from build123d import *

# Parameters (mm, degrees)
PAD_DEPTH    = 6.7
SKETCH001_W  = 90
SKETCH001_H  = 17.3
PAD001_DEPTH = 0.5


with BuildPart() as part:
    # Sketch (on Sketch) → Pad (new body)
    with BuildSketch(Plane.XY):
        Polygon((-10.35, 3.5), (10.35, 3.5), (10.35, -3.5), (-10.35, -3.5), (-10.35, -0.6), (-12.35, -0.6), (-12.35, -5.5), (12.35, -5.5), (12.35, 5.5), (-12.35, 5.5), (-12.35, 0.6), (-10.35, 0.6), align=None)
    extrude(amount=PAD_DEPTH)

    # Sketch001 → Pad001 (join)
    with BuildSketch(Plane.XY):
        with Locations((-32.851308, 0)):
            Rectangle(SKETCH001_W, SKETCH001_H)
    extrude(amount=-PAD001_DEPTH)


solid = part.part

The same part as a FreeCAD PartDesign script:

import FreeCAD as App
import Part
import Sketcher
from FreeCAD import Vector
Q = App.Units.Quantity

doc = App.newDocument("Part")
body = doc.addObject("PartDesign::Body", "Body")

# Sketch on XY plane
sketch1 = body.newObject("Sketcher::SketchObject", "Sketch")
sketch1.AttachmentSupport = (doc.getObject("XY_Plane"), [""])
sketch1.MapMode = "FlatFace"
sketch1.addGeometry([
    Part.LineSegment(Vector(-10.35, 3.5, 0), Vector(10.35, 3.5, 0)),  # 0
    Part.LineSegment(Vector(10.35, 3.5, 0), Vector(10.35, -3.5, 0)),  # 1
    Part.LineSegment(Vector(10.35, -3.5, 0), Vector(-10.35, -3.5, 0)),  # 2
    Part.LineSegment(Vector(-10.35, -3.5, 0), Vector(-10.35, -0.6, 0)),  # 3
    Part.LineSegment(Vector(-10.35, -0.6, 0), Vector(-12.35, -0.6, 0)),  # 4
    Part.LineSegment(Vector(-12.35, -0.6, 0), Vector(-12.35, -5.5, 0)),  # 5
    Part.LineSegment(Vector(-12.35, -5.5, 0), Vector(12.35, -5.5, 0)),  # 6
    Part.LineSegment(Vector(12.35, -5.5, 0), Vector(12.35, 5.5, 0)),  # 7
    Part.LineSegment(Vector(12.35, 5.5, 0), Vector(-12.35, 5.5, 0)),  # 8
    Part.LineSegment(Vector(-12.35, 5.5, 0), Vector(-12.35, 0.6, 0)),  # 9
    Part.LineSegment(Vector(-12.35, 0.6, 0), Vector(-10.35, 0.6, 0)),  # 10
    Part.LineSegment(Vector(-10.35, 0.6, 0), Vector(-10.35, 3.5, 0)),  # 11
], False)
sketch1.addConstraint([
    Sketcher.Constraint("Coincident", 0, 2, 1, 1),
    Sketcher.Constraint("Coincident", 1, 2, 2, 1),
    Sketcher.Constraint("Coincident", 2, 2, 3, 1),
    Sketcher.Constraint("Coincident", 3, 2, 4, 1),
    Sketcher.Constraint("Coincident", 4, 2, 5, 1),
    Sketcher.Constraint("Coincident", 5, 2, 6, 1),
    Sketcher.Constraint("Coincident", 6, 2, 7, 1),
    Sketcher.Constraint("Coincident", 7, 2, 8, 1),
    Sketcher.Constraint("Coincident", 8, 2, 9, 1),
    Sketcher.Constraint("Coincident", 9, 2, 10, 1),
    Sketcher.Constraint("Coincident", 10, 2, 11, 1),
    Sketcher.Constraint("Coincident", 11, 2, 0, 1),
    Sketcher.Constraint("Horizontal", 0),
    Sketcher.Constraint("Vertical", 1),
    Sketcher.Constraint("Horizontal", 2),
    Sketcher.Constraint("Vertical", 3),
    Sketcher.Constraint("Horizontal", 4),
    Sketcher.Constraint("Vertical", 5),
    Sketcher.Constraint("Horizontal", 6),
    Sketcher.Constraint("Vertical", 7),
    Sketcher.Constraint("Horizontal", 8),
    Sketcher.Constraint("Vertical", 9),
    Sketcher.Constraint("Horizontal", 10),
    Sketcher.Constraint("Vertical", 11),
    Sketcher.Constraint("Symmetric", 0, 2, 2, 2, -1, 1),
    Sketcher.Constraint("Symmetric", 5, 2, 7, 2, -1, 1),
    Sketcher.Constraint("Symmetric", 4, 2, 9, 2, -1),
    Sketcher.Constraint("Vertical", 3, 2, 10, 2),
    Sketcher.Constraint("DistanceX", 4, 2, 4, 1, Q("2 mm")),
    Sketcher.Constraint("DistanceY", 1, 2, 1, 1, Q("7 mm")),
    Sketcher.Constraint("DistanceY", 7, 1, 7, 2, Q("11 mm")),
    Sketcher.Constraint("DistanceX", 0, 1, 0, 2, Q("20.7 mm")),
    Sketcher.Constraint("DistanceY", 3, 1, 3, 2, Q("2.9 mm")),
])
pad1 = body.newObject("PartDesign::Pad", "Pad")
pad1.Profile = sketch1
pad1.Length = 6.7

# Sketch on XY plane
sketch2 = body.newObject("Sketcher::SketchObject", "Sketch001")
sketch2.AttachmentSupport = (doc.getObject("XY_Plane"), [""])
sketch2.MapMode = "FlatFace"
sketch2.addGeometry([
    Part.LineSegment(Vector(-77.851308, 8.65, 0), Vector(-77.851308, -8.65, 0)),
    Part.LineSegment(Vector(-77.851308, -8.65, 0), Vector(12.148692, -8.65, 0)),
    Part.LineSegment(Vector(12.148692, -8.65, 0), Vector(12.148692, 8.65, 0)),
    Part.LineSegment(Vector(12.148692, 8.65, 0), Vector(-77.851308, 8.65, 0)),
], False)
sketch2.addConstraint([
    Sketcher.Constraint("Coincident", 0, 2, 1, 1),
    Sketcher.Constraint("Coincident", 1, 2, 2, 1),
    Sketcher.Constraint("Coincident", 2, 2, 3, 1),
    Sketcher.Constraint("Coincident", 3, 2, 0, 1),
    Sketcher.Constraint("Vertical", 0),
    Sketcher.Constraint("Horizontal", 1),
    Sketcher.Constraint("Vertical", 2),
    Sketcher.Constraint("Horizontal", 3),
    Sketcher.Constraint("DistanceX", 1, 1, 1, 2, Q("90 mm")),
    Sketcher.Constraint("DistanceY", 0, 2, 0, 1, Q("17.3 mm")),
    Sketcher.Constraint("DistanceY", 0, 2, -1, 1, Q("8.65 mm")),
    Sketcher.Constraint("DistanceX", 0, 2, -1, 1, Q("77.851308 mm")),
])
pad2 = body.newObject("PartDesign::Pad", "Pad001")
pad2.Profile = sketch2
pad2.Length = 0.5
pad2.Reversed = True

doc.recompute()
